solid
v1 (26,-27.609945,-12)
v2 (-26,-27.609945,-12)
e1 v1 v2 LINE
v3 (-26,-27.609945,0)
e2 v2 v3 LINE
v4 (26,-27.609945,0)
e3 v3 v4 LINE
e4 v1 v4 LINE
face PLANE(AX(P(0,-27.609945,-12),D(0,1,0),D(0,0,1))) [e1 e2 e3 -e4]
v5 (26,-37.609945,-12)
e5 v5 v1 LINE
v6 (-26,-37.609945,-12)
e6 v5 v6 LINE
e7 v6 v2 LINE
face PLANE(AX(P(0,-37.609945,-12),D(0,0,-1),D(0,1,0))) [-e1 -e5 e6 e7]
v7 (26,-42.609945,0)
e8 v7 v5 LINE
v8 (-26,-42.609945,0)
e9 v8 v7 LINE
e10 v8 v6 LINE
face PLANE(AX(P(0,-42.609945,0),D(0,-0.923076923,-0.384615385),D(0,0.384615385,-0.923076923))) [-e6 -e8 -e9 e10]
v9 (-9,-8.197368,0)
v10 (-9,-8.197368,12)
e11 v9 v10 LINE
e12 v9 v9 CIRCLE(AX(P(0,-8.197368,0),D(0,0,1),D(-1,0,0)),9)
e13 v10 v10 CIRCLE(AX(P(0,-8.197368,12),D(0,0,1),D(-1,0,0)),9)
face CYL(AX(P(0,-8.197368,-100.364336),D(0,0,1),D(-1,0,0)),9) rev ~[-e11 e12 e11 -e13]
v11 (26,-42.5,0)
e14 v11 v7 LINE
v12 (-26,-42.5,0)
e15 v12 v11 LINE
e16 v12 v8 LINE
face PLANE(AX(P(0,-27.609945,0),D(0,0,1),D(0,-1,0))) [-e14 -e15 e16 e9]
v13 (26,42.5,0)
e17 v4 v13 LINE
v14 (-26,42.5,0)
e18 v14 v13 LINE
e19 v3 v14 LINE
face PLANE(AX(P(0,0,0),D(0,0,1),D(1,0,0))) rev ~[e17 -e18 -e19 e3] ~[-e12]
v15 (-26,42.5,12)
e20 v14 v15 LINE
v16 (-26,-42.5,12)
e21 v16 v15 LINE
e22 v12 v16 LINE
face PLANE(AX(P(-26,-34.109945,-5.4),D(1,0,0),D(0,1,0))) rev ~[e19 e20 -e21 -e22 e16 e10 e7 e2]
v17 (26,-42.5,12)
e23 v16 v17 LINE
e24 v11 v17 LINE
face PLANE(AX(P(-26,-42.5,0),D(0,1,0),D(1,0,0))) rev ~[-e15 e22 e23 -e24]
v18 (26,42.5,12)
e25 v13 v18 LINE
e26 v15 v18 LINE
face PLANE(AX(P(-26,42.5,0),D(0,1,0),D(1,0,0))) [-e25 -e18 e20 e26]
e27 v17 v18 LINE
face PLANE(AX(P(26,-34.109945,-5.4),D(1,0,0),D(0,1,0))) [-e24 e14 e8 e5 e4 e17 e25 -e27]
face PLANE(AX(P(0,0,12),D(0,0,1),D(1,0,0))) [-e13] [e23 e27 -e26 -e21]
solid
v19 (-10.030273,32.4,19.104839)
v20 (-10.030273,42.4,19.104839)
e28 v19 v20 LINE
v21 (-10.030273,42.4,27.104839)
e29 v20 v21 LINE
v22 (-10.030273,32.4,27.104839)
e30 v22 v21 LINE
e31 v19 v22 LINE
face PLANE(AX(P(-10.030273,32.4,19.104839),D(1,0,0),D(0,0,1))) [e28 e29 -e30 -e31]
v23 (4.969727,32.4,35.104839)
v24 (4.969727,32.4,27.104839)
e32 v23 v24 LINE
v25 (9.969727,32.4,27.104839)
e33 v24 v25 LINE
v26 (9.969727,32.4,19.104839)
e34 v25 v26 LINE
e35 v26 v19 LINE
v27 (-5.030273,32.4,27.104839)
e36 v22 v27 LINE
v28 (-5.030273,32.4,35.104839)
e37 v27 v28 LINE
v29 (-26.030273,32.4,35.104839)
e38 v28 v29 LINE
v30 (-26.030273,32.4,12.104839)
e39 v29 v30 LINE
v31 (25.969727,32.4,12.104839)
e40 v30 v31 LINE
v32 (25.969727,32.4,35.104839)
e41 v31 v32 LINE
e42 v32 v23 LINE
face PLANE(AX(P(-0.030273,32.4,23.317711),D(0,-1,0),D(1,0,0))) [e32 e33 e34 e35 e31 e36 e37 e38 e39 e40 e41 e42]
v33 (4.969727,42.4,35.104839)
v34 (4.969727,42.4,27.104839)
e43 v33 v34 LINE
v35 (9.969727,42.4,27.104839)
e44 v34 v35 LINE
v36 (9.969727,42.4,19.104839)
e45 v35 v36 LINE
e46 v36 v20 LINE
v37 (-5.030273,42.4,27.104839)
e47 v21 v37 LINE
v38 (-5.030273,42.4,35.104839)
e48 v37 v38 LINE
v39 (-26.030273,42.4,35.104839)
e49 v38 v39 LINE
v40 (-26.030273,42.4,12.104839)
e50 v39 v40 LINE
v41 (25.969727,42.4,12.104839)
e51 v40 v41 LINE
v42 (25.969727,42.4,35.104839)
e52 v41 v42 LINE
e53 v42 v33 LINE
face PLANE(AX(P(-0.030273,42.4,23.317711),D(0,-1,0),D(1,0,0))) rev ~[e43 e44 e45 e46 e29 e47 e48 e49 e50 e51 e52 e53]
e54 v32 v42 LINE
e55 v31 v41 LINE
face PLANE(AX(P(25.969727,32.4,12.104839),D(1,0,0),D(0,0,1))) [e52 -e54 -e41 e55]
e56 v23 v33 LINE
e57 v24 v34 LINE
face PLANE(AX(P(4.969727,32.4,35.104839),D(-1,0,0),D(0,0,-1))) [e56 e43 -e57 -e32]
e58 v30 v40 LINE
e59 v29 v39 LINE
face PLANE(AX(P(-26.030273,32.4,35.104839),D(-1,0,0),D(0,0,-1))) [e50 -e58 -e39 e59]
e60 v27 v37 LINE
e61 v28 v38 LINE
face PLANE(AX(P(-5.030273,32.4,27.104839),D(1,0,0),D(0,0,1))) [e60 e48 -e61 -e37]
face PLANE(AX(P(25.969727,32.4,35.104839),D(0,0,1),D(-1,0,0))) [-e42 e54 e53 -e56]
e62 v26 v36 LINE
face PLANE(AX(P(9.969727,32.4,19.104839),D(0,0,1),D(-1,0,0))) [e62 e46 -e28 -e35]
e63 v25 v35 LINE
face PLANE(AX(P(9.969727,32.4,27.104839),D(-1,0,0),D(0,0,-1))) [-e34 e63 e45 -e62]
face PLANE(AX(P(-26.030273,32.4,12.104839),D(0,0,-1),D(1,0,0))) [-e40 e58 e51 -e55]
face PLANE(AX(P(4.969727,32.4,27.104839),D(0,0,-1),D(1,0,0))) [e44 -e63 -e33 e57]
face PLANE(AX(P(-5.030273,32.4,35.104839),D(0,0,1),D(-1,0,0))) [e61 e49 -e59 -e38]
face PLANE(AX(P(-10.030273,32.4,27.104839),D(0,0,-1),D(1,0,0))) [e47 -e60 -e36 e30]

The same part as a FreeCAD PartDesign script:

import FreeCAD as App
import Part
import Sketcher

V = App.Vector

doc = App.newDocument("Part")
body = doc.addObject("PartDesign::Body", "Body")

# Sketch on XY plane
sketch1 = body.newObject("Sketcher::SketchObject", "Sketch")
sketch1.AttachmentSupport = (doc.getObject("XY_Plane"), [""])
sketch1.MapMode = "FlatFace"
sketch1.addGeometry([
    Part.LineSegment(V(-26, 42, 0), V(-26, -42, 0)),
    Part.LineSegment(V(-26, -42, 0), V(26, -42, 0)),
    Part.LineSegment(V(26, -42, 0), V(26, 42, 0)),
    Part.LineSegment(V(26, 42, 0), V(-26, 42, 0)),
], False)
sketch1.addConstraint([
    Sketcher.Constraint("Coincident", 0, 2, 1, 1),
    Sketcher.Constraint("Coincident", 1, 2, 2, 1),
    Sketcher.Constraint("Coincident", 2, 2, 3, 1),
    Sketcher.Constraint("Coincident", 3, 2, 0, 1),
    Sketcher.Constraint("Vertical", 0),
    Sketcher.Constraint("Horizontal", 1),
    Sketcher.Constraint("Vertical", 2),
    Sketcher.Constraint("Horizontal", 3),
    Sketcher.Constraint("Symmetric", 0, 2, 2, 2, -1, 1),
    Sketcher.Constraint("DistanceX", 1, 1, 1, 2, 52.0),
    Sketcher.Constraint("DistanceY", 0, 2, 0, 1, 85.0),
])
pad1 = body.newObject("PartDesign::Pad", "Pad")
pad1.Profile = sketch1
pad1.Length = 12

# Sketch on XY plane
sketch2 = body.newObject("Sketcher::SketchObject", "Sketch001")
sketch2.AttachmentSupport = (doc.getObject("XY_Plane"), [""])
sketch2.MapMode = "FlatFace"
sketch2.addGeometry(Part.Circle(V(0, -8, 0), V(0, 0, 1), 9), False)
sketch2.addConstraint([
    Sketcher.Constraint("PointOnObject", 0, 3, -2),
    Sketcher.Constraint("Diameter", 0, 18.0),
    Sketcher.Constraint("DistanceY", 0, 3, -1, 1, 8.197368),
])
doc.recompute()
hole = body.newObject("PartDesign::Hole", "Hole")
hole.Profile = sketch2
hole.ThreadType = "None"
hole.Diameter = 18
hole.DepthType = "ThroughAll"
hole.Reversed = True

# Sketch on YZ plane
sketch3 = body.newObject("Sketcher::SketchObject", "Sketch002")
sketch3.AttachmentSupport = (doc.getObject("YZ_Plane"), [""])
sketch3.MapMode = "FlatFace"
sketch3.addGeometry([
    Part.LineSegment(V(-28, -12, 0), V(-28, 0, 0)),
    Part.LineSegment(V(-28, 0, 0), V(-43, 0, 0)),
    Part.LineSegment(V(-43, 0, 0), V(-38, -12, 0)),
    Part.LineSegment(V(-38, -12, 0), V(-28, -12, 0)),
], False)
sketch3.addConstraint([
    Sketcher.Constraint("Coincident", 0, 2, 1, 1),
    Sketcher.Constraint("Coincident", 1, 2, 2, 1),
    Sketcher.Constraint("Coincident", 2, 2, 3, 1),
    Sketcher.Constraint("Coincident", 3, 2, 0, 1),
    Sketcher.Constraint("Vertical", 0),
    Sketcher.Constraint("Horizontal", 1),
    Sketcher.Constraint("Horizontal", 3),
    Sketcher.Constraint("PointOnObject", 0, 2, -1),
    Sketcher.Constraint("DistanceX", 1, 2, 1, 1, 15.0),
    Sketcher.Constraint("DistanceX", 3, 1, 3, 2, 10.0),
    Sketcher.Constraint("DistanceY", 0, 1, 0, 2, 12.0),
    Sketcher.Constraint("DistanceX", 0, 2, -1, 1, 27.609945),
])
pad2 = body.newObject("PartDesign::Pad", "Pad001")
pad2.Profile = sketch3
pad2.Length = 52
pad2.Midplane = True
body2 = doc.addObject("PartDesign::Body", "Body001")

# Sketch on XZ plane
sketch4 = body2.newObject("Sketcher::SketchObject", "Sketch003")
sketch4.AttachmentSupport = (doc.getObject("XZ_Plane001"), [""])
sketch4.MapMode = "FlatFace"
sketch4.AttachmentOffset = App.Placement(V(0, 0, -32.4), App.Rotation())
sketch4.addGeometry([
    Part.LineSegment(V(-26, 35.1, 0), V(-26, 12.1, 0)),  # 0
    Part.LineSegment(V(-26, 12.1, 0), V(26, 12.1, 0)),  # 1
    Part.LineSegment(V(26, 12.1, 0), V(26, 35.1, 0)),  # 2
    Part.LineSegment(V(26, 35.1, 0), V(5, 35.1, 0)),  # 3
    Part.LineSegment(V(5, 35.1, 0), V(5, 27.1, 0)),  # 4
    Part.LineSegment(V(5, 27.1, 0), V(10, 27.1, 0)),  # 5
    Part.LineSegment(V(10, 27.1, 0), V(10, 19.1, 0)),  # 6
    Part.LineSegment(V(10, 19.1, 0), V(-10, 19.1, 0)),  # 7
    Part.LineSegment(V(-10, 19.1, 0), V(-10, 27.1, 0)),  # 8
    Part.LineSegment(V(-10, 27.1, 0), V(-5, 27.1, 0)),  # 9
    Part.LineSegment(V(-5, 27.1, 0), V(-5, 35.1, 0)),  # 10
    Part.LineSegment(V(-5, 35.1, 0), V(-26, 35.1, 0)),  # 11
], False)
sketch4.addConstraint([
    Sketcher.Constraint("Coincident", 0, 2, 1, 1),
    Sketcher.Constraint("Coincident", 1, 2, 2, 1),
    Sketcher.Constraint("Coincident", 2, 2, 3, 1),
    Sketcher.Constraint("Coincident", 3, 2, 4, 1),
    Sketcher.Constraint("Coincident", 4, 2, 5, 1),
    Sketcher.Constraint("Coincident", 5, 2, 6, 1),
    Sketcher.Constraint("Coincident", 6, 2, 7, 1),
    Sketcher.Constraint("Coincident", 7, 2, 8, 1),
    Sketcher.Constraint("Coincident", 8, 2, 9, 1),
    Sketcher.Constraint("Coincident", 9, 2, 10, 1),
    Sketcher.Constraint("Coincident", 10, 2, 11, 1),
    Sketcher.Constraint("Coincident", 11, 2, 0, 1),
    Sketcher.Constraint("Vertical", 0),
    Sketcher.Constraint("Horizontal", 1),
    Sketcher.Constraint("Vertical", 2),
    Sketcher.Constraint("Horizontal", 3),
    Sketcher.Constraint("Vertical", 4),
    Sketcher.Constraint("Horizontal", 5),
    Sketcher.Constraint("Vertical", 6),
    Sketcher.Constraint("Horizontal", 7),
    Sketcher.Constraint("Vertical", 8),
    Sketcher.Constraint("Horizontal", 9),
    Sketcher.Constraint("Vertical", 10),
    Sketcher.Constraint("Horizontal", 11),
    Sketcher.Constraint("Horizontal", 5, 2, 8, 2),
    Sketcher.Constraint("Horizontal", 3, 2, 10, 2),
    Sketcher.Constraint("Equal", 5, 9),
    Sketcher.Constraint("Equal", 3, 11),
    Sketcher.Constraint("Equal", 4, 6),
    Sketcher.Constraint("DistanceX", 1, 1, 1, 2, 52.0),
    Sketcher.Constraint("DistanceX", 3, 2, 3, 1, 21.0),
    Sketcher.Constraint("DistanceX", 5, 1, 5, 2, 5.0),
    Sketcher.Constraint("DistanceY", 0, 2, 0, 1, 23.0),
    Sketcher.Constraint("DistanceY", 4, 2, 4, 1, 8.0),
    Sketcher.Constraint("DistanceY", -1, 1, 0, 2, 12.104839),
    Sketcher.Constraint("DistanceX", 0, 2, -1, 1, 26.030273),
])
pad3 = body2.newObject("PartDesign::Pad", "Pad002")
pad3.Profile = sketch4
pad3.Length = 10
pad3.Reversed = True

doc.recompute()
